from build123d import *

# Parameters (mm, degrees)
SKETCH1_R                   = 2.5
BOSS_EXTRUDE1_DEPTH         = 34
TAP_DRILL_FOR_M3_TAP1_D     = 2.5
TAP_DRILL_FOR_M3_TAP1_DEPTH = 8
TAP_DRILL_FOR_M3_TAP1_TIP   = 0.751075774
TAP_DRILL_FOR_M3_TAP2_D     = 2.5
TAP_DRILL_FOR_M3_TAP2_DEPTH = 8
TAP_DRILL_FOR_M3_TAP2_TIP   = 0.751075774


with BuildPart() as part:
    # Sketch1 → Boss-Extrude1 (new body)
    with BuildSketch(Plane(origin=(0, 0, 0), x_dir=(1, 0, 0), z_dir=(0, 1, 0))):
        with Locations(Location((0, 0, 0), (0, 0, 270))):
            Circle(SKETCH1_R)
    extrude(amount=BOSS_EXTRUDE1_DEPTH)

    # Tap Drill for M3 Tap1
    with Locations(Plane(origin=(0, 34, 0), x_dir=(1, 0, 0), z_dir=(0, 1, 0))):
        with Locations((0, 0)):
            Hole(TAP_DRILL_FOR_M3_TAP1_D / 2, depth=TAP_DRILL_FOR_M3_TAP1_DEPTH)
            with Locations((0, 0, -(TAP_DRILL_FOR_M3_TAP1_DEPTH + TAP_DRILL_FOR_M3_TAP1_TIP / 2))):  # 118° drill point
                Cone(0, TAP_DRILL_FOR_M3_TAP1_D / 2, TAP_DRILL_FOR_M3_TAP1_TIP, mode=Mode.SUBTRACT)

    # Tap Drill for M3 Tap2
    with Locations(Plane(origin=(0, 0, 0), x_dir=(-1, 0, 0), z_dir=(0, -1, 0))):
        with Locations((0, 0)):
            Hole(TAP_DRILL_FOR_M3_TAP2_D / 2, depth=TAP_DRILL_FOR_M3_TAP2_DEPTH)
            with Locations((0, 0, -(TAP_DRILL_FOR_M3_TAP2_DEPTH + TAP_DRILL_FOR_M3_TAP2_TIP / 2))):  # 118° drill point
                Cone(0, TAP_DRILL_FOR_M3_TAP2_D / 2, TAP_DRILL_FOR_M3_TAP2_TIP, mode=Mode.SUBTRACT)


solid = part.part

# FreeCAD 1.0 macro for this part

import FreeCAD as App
import Part
import Sketcher

doc = App.newDocument("Part")
body = doc.addObject("PartDesign::Body", "Body")

sketch1 = body.newObject("Sketcher::SketchObject", "Sketch")
sketch1.AttachmentSupport = (doc.getObject("XZ_Plane"), [""])
sketch1.MapMode = "FlatFace"
sketch1.addGeometry(Part.Circle(App.Vector(0, 0, 0), App.Vector(0, 0, 1), 2.5), False)
sketch1.addConstraint(Sketcher.Constraint("Coincident", 0, 3, -1, 1))
sketch1.addConstraint(Sketcher.Constraint("Diameter", 0, 5.0))
pad1 = body.newObject("PartDesign::Pad", "Pad")
pad1.Profile = sketch1
pad1.Length = 34
pad1.Reversed = True

sketch2 = body.newObject("Sketcher::SketchObject", "Sketch001")
sketch2.AttachmentSupport = (doc.getObject("XZ_Plane"), [""])
sketch2.MapMode = "FlatFace"
sketch2.AttachmentOffset = App.Placement(App.Vector(0, 0, -34), App.Rotation())
sketch2.addGeometry(Part.Circle(App.Vector(0, 0, 0), App.Vector(0, 0, 1), 1.25), False)
sketch2.addConstraint(Sketcher.Constraint("Coincident", 0, 3, -1, 1))
sketch2.addConstraint(Sketcher.Constraint("Diameter", 0, 2.5))
doc.recompute()
hole = body.newObject("PartDesign::Hole", "Hole")
hole.Profile = sketch2
hole.ThreadType = "None"
hole.Diameter = 2.5
hole.DepthType = "Dimension"
hole.Depth = 8
hole.DrillPoint = "Angled"
hole.DrillPointAngle = 118
hole.Reversed = True

sketch3 = body.newObject("Sketcher::SketchObject", "Sketch002")
sketch3.AttachmentSupport = (doc.getObject("XZ_Plane"), [""])
sketch3.MapMode = "FlatFace"
sketch3.addGeometry(Part.Circle(App.Vector(0, 0, 0), App.Vector(0, 0, 1), 1.25), False)
sketch3.addConstraint(Sketcher.Constraint("Coincident", 0, 3, -1, 1))
sketch3.addConstraint(Sketcher.Constraint("Diameter", 0, 2.5))
doc.recompute()
hole2 = body.newObject("PartDesign::Hole", "Hole001")
hole2.Profile = sketch3
hole2.ThreadType = "None"
hole2.Diameter = 2.5
hole2.DepthType = "Dimension"
hole2.Depth = 8
hole2.DrillPoint = "Angled"
hole2.DrillPointAngle = 118

doc.recompute()
